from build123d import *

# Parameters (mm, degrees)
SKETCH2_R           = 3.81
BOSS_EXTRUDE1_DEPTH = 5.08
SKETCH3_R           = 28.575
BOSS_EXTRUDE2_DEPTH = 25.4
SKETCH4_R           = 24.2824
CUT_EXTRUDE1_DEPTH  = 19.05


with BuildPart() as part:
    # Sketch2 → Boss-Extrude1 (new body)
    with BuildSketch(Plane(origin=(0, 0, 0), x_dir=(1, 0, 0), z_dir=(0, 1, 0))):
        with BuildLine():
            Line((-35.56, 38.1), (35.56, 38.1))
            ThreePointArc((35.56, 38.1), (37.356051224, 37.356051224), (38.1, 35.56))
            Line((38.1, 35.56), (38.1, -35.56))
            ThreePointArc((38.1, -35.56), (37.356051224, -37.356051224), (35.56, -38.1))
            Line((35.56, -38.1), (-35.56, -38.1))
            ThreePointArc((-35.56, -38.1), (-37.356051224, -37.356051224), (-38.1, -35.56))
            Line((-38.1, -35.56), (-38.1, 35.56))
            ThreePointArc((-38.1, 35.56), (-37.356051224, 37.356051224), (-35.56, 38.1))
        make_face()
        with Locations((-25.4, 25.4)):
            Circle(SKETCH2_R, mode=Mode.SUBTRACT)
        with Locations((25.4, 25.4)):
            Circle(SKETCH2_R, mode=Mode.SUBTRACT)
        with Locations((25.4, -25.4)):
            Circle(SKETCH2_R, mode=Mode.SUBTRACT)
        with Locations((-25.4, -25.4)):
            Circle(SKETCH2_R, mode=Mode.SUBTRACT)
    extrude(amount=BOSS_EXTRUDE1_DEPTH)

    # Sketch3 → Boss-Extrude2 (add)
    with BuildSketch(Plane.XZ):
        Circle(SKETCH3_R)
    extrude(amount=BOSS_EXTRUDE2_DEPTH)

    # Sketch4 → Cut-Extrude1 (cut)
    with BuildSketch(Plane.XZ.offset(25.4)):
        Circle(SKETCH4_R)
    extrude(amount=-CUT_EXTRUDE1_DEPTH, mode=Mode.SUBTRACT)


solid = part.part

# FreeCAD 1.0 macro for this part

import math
import FreeCAD as App
import Part
import Sketcher

V = App.Vector
Q = App.Units.Quantity

doc = App.newDocument("Part")
body = doc.addObject("PartDesign::Body", "Body")

# Sketch on XZ plane
sketch1 = body.newObject("Sketcher::SketchObject", "Sketch")
sketch1.AttachmentSupport = (doc.getObject("XZ_Plane"), [""])
sketch1.MapMode = "FlatFace"
sketch1.addGeometry([
    Part.LineSegment(V(35.56, -38.1, 0), V(-35.56, -38.1, 0)),  # 0
    Part.ArcOfCircle(Part.Circle(V(-35.56, -35.56, 0), V(0, 0, 1), 2.54), math.radians(-180), math.radians(-90)),  # 1
    Part.LineSegment(V(-38.1, -35.56, 0), V(-38.1, 35.56, 0)),  # 2
    Part.ArcOfCircle(Part.Circle(V(-35.56, 35.56, 0), V(0, 0, 1), 2.54), math.radians(90), math.radians(180)),  # 3
    Part.LineSegment(V(-35.56, 38.1, 0), V(35.56, 38.1, 0)),  # 4
    Part.ArcOfCircle(Part.Circle(V(35.56, 35.56, 0), V(0, 0, 1), 2.54), math.radians(0), math.radians(90)),  # 5
    Part.LineSegment(V(38.1, 35.56, 0), V(38.1, -35.56, 0)),  # 6
    Part.ArcOfCircle(Part.Circle(V(35.56, -35.56, 0), V(0, 0, 1), 2.54), math.radians(-90), math.radians(0)),  # 7
    Part.Circle(V(25.4, 25.4, 0), V(0, 0, 1), 3.81),  # 8
    Part.Circle(V(-25.4, 25.4, 0), V(0, 0, 1), 3.81),  # 9
    Part.Circle(V(25.4, -25.4, 0), V(0, 0, 1), 3.81),  # 10
    Part.Circle(V(-25.4, -25.4, 0), V(0, 0, 1), 3.81),  # 11
], False)
sketch1.addConstraint([
    Sketcher.Constraint("Tangent", 0, 2, 1, 2),
    Sketcher.Constraint("Tangent", 1, 1, 2, 1),
    Sketcher.Constraint("Tangent", 2, 2, 3, 2),
    Sketcher.Constraint("Tangent", 3, 1, 4, 1),
    Sketcher.Constraint("Tangent", 4, 2, 5, 2),
    Sketcher.Constraint("Tangent", 5, 1, 6, 1),
    Sketcher.Constraint("Tangent", 6, 2, 7, 2),
    Sketcher.Constraint("Tangent", 7, 1, 0, 1),
    Sketcher.Constraint("Horizontal", 0),
    Sketcher.Constraint("Vertical", 2),
    Sketcher.Constraint("Horizontal", 4),
    Sketcher.Constraint("Vertical", 6),
    Sketcher.Constraint("Equal", 1, 3),
    Sketcher.Constraint("Equal", 3, 5),
    Sketcher.Constraint("Equal", 5, 7),
    Sketcher.Constraint("Equal", 8, 9),
    Sketcher.Constraint("Equal", 9, 10),
    Sketcher.Constraint("Equal", 10, 11),
    Sketcher.Constraint("Symmetric", 1, 3, 5, 3, -1, 1),
    Sketcher.Constraint("Symmetric", 9, 3, 10, 3, -1, 1),
    Sketcher.Constraint("Symmetric", 8, 3, 11, 3, -1, 1),
    Sketcher.Constraint("Symmetric", 8, 3, 9, 3, -2),
    Sketcher.Constraint("Equal", 4, 2),
    Sketcher.Constraint("Diameter", 8, Q("0.3 in")),
    Sketcher.Constraint("Radius", 1, Q("0.1 in")),
    Sketcher.Constraint("DistanceX", 0, 2, 0, 1, Q("2.8 in")),
    Sketcher.Constraint("DistanceX", -1, 1, 8, 3, Q("1 in")),
    Sketcher.Constraint("DistanceY", -1, 1, 8, 3, Q("1 in")),
])
pad1 = body.newObject("PartDesign::Pad", "Pad")
pad1.Profile = sketch1
pad1.Length = Q("0.2 in")
pad1.Reversed = True

# Sketch on XZ plane
sketch2 = body.newObject("Sketcher::SketchObject", "Sketch001")
sketch2.AttachmentSupport = (doc.getObject("XZ_Plane"), [""])
sketch2.MapMode = "FlatFace"
sketch2.addGeometry(Part.Circle(V(0, 0, 0), V(0, 0, 1), 28.575), False)
sketch2.addConstraint([
    Sketcher.Constraint("Coincident", 0, 3, -1, 1),
    Sketcher.Constraint("Diameter", 0, Q("2.25 in")),
])
pad2 = body.newObject("PartDesign::Pad", "Pad001")
pad2.Profile = sketch2
pad2.Length = Q("1 in")

# Sketch on XZ plane
sketch3 = body.newObject("Sketcher::SketchObject", "Sketch002")
sketch3.AttachmentSupport = (doc.getObject("XZ_Plane"), [""])
sketch3.MapMode = "FlatFace"
sketch3.AttachmentOffset = App.Placement(V(0, 0, 1 * 25.4), App.Rotation())
sketch3.addGeometry(Part.Circle(V(0, 0, 0), V(0, 0, 1), 24.2824), False)
sketch3.addConstraint([
    Sketcher.Constraint("Coincident", 0, 3, -1, 1),
    Sketcher.Constraint("Diameter", 0, Q("1.912 in")),
])
pocket1 = body.newObject("PartDesign::Pocket", "Pocket")
pocket1.Profile = sketch3
pocket1.Length = Q("0.75 in")

doc.recompute()
